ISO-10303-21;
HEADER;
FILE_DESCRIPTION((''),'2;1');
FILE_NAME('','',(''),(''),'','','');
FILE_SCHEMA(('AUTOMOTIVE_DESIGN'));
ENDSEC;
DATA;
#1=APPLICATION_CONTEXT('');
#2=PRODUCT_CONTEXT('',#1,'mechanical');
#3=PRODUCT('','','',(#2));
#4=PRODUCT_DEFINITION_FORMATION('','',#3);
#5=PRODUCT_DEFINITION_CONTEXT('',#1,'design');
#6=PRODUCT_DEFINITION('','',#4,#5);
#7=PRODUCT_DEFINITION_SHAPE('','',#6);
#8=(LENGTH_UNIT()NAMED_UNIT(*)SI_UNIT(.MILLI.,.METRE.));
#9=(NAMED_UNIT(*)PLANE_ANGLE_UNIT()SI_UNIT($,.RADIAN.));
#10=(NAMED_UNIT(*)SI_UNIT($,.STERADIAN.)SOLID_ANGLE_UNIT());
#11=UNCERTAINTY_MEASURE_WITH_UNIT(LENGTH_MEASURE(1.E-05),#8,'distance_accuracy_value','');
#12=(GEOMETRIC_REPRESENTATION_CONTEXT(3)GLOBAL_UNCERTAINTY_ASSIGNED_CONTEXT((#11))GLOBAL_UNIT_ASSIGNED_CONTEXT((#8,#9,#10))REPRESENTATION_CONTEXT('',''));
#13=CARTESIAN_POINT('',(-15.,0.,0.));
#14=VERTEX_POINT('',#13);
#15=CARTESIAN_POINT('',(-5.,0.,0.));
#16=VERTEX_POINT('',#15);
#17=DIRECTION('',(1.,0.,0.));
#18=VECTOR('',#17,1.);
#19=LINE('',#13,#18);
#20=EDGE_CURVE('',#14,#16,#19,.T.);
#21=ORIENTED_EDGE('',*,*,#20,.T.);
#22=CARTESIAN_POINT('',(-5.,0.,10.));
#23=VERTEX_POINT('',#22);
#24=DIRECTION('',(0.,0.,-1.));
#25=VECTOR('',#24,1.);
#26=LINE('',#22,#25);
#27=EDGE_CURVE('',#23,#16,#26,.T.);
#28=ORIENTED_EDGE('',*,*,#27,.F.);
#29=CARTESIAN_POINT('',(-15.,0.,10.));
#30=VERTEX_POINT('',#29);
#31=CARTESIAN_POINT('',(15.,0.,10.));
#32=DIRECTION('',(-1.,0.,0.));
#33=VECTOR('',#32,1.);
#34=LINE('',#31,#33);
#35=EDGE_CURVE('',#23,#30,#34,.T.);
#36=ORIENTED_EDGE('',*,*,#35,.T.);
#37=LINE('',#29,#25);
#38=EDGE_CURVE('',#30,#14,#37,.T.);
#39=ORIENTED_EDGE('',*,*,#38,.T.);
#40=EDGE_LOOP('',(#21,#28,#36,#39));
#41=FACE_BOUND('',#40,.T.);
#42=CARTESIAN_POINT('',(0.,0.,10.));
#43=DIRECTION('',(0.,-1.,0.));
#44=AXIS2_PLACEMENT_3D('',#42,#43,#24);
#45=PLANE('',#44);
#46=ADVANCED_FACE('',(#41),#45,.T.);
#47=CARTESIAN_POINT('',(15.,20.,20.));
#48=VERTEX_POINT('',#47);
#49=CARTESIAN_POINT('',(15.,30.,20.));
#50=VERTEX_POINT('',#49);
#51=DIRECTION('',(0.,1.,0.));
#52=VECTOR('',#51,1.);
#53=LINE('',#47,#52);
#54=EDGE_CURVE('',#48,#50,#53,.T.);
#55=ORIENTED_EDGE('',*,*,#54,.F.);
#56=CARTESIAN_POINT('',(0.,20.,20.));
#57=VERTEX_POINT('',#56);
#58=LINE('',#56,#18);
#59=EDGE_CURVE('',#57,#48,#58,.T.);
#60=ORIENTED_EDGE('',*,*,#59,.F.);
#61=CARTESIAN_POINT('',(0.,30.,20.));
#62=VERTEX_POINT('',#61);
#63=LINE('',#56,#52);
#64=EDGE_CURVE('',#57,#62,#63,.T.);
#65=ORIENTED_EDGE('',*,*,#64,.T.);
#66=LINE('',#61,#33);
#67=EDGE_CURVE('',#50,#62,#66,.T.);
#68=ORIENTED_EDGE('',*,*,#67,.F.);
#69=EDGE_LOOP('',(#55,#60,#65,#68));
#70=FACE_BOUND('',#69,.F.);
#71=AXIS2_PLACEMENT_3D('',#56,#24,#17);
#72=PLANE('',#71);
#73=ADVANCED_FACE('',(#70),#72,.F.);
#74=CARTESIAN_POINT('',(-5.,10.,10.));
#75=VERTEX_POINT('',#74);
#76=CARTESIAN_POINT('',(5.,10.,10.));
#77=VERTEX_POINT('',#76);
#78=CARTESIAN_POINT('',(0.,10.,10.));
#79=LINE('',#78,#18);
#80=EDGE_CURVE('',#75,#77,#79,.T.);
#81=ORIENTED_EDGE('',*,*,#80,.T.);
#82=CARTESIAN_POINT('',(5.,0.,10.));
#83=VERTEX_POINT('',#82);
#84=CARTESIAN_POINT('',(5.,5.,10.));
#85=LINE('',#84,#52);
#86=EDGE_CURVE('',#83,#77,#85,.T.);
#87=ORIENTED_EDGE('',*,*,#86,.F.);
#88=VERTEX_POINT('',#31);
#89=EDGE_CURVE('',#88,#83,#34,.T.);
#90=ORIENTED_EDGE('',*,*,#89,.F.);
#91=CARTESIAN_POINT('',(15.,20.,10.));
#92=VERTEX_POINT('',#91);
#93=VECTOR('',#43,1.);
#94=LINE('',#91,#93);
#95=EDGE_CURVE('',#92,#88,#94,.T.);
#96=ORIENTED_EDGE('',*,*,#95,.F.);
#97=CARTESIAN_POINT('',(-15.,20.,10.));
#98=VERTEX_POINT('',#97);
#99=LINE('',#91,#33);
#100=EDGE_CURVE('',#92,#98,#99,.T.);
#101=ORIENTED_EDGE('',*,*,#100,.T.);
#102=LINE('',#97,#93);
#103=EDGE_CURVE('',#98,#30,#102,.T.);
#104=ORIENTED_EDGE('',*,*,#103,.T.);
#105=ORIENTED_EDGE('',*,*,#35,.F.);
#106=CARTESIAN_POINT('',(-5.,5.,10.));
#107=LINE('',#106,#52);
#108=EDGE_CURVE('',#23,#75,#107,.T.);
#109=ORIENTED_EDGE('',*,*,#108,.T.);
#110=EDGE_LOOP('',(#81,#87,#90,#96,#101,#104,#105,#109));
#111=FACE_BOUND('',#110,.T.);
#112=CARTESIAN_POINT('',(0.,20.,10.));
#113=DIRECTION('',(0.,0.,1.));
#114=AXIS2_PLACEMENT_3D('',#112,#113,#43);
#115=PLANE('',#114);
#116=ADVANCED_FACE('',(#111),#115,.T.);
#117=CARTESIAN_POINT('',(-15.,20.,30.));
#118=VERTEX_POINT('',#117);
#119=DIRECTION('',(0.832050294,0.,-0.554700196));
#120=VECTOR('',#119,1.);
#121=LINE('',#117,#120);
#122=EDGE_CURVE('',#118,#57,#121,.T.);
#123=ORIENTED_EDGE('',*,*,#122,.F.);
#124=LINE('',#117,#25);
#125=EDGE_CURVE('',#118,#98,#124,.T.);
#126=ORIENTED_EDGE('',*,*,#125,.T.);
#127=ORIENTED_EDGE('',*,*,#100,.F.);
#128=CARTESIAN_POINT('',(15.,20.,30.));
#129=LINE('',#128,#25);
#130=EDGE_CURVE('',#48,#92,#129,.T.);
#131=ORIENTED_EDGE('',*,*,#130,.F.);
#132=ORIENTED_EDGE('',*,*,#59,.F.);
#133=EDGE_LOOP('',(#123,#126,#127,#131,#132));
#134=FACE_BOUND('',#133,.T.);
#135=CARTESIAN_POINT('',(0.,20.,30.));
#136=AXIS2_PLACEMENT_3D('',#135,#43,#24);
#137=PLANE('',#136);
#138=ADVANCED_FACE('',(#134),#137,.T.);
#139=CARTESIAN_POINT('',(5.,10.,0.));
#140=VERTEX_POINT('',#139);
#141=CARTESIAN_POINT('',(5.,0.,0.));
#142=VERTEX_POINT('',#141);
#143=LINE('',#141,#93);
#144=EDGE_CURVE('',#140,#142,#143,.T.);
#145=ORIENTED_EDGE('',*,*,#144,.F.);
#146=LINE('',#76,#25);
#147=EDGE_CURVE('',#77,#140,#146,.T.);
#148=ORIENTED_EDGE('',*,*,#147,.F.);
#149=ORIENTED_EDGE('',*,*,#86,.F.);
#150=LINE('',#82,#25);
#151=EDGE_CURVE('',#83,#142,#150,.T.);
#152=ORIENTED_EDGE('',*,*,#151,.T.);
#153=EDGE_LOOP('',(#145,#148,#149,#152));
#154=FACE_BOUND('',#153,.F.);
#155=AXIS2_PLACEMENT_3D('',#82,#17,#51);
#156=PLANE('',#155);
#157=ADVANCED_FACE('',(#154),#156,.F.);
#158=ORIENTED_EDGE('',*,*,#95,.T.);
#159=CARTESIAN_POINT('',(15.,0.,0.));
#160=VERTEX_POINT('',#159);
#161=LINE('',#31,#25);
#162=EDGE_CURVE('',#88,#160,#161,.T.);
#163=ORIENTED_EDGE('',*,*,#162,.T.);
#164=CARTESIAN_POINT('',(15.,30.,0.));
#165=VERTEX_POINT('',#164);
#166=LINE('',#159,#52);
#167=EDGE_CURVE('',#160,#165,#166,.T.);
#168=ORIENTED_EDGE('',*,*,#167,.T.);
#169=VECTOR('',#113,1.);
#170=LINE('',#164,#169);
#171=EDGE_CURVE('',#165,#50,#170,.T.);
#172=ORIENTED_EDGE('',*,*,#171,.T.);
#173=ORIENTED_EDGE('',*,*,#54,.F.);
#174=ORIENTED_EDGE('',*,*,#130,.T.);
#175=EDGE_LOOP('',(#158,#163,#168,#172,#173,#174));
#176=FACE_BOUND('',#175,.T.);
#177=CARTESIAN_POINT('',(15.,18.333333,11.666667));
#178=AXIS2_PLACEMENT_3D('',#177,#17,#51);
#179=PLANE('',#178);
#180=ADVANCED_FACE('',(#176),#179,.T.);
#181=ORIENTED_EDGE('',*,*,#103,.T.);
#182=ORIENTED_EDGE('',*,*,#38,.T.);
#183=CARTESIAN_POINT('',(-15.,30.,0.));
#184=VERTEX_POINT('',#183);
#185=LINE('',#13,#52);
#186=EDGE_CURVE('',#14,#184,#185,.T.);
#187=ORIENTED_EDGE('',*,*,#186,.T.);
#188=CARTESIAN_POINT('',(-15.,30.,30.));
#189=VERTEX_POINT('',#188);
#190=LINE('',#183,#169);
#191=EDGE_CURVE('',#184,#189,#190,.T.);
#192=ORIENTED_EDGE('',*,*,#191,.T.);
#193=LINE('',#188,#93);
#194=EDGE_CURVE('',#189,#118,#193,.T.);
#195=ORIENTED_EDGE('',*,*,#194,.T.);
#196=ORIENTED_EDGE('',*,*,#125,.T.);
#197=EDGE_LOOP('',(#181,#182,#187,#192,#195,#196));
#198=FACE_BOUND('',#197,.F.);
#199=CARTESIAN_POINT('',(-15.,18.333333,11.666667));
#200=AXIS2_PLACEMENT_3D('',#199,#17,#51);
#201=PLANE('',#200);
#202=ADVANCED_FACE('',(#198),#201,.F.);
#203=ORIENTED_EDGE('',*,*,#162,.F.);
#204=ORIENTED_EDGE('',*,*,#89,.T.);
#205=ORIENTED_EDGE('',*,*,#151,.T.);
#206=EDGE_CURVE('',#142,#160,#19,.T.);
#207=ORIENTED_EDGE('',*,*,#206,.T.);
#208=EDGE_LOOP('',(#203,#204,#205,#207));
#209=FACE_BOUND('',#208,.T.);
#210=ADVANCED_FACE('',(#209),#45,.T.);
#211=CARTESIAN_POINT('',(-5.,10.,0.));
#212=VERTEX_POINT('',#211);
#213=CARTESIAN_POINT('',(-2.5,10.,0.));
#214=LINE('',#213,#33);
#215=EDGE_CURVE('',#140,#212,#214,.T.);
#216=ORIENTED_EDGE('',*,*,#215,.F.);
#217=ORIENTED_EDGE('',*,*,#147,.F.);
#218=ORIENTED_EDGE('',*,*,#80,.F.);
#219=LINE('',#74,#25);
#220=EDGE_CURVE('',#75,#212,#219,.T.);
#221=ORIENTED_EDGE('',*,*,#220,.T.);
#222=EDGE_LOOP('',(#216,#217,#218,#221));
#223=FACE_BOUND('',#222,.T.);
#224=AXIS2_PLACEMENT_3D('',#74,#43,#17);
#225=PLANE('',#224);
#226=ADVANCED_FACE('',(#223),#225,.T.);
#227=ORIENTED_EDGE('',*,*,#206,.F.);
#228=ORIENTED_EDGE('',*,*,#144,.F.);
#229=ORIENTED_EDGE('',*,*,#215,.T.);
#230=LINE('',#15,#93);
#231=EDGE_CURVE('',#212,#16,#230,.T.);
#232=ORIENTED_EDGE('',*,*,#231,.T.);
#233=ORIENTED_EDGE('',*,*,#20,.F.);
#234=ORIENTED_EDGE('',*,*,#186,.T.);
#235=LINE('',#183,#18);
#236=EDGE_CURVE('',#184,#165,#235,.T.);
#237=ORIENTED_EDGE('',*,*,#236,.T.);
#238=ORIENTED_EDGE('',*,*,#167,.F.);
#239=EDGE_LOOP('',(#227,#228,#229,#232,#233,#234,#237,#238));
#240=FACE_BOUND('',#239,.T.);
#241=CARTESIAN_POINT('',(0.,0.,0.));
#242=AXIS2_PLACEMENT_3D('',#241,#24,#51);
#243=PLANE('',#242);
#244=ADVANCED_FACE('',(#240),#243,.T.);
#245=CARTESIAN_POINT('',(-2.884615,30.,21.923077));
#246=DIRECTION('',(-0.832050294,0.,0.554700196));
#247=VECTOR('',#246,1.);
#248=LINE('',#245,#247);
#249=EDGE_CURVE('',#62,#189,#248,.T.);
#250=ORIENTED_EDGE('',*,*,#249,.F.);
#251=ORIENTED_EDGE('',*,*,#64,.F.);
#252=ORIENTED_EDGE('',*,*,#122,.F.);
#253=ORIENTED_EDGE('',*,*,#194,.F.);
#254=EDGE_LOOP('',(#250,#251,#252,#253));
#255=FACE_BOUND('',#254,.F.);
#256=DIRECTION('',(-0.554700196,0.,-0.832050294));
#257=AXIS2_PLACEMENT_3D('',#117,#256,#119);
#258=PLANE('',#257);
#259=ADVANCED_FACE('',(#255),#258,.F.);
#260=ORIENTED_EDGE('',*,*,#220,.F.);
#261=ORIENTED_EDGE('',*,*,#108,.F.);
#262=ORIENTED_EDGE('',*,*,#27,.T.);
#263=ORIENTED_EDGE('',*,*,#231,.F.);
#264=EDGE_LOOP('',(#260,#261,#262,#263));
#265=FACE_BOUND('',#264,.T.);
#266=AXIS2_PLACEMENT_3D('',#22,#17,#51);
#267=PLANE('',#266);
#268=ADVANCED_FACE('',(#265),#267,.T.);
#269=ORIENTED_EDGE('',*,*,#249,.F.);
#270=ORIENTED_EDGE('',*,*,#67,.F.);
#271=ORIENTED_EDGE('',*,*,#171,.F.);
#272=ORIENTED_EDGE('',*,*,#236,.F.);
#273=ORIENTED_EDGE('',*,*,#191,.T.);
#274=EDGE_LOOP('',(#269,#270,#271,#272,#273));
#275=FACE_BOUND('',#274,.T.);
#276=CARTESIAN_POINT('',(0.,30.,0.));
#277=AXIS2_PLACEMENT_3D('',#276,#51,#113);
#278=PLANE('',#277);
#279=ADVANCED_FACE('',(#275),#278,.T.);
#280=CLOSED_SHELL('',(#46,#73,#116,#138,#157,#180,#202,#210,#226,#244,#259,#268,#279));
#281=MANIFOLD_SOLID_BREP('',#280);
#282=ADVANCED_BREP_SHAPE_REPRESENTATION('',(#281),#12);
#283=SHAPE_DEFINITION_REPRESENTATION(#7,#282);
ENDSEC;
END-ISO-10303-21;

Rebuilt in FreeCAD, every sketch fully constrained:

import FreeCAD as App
import Part
import Sketcher

V = App.Vector

doc = App.newDocument("Part")
body = doc.addObject("PartDesign::Body", "Body")

# Sketch on YZ plane
sketch1 = body.newObject("Sketcher::SketchObject", "Sketch")
sketch1.AttachmentSupport = (doc.getObject("YZ_Plane"), [""])
sketch1.MapMode = "FlatFace"
sketch1.addGeometry(Part.LineSegment(V(0, 10, 0), V(0, 0, 0)), False)
sketch1.addGeometry(Part.LineSegment(V(0, 0, 0), V(30, 0, 0)), False)
sketch1.addGeometry(Part.LineSegment(V(30, 0, 0), V(30, 30, 0)), False)
sketch1.addGeometry(Part.LineSegment(V(30, 30, 0), V(20, 30, 0)), False)
sketch1.addGeometry(Part.LineSegment(V(20, 30, 0), V(20, 10, 0)), False)
sketch1.addGeometry(Part.LineSegment(V(20, 10, 0), V(0, 10, 0)), False)
sketch1.addConstraint(Sketcher.Constraint("Coincident", 0, 2, 1, 1))
sketch1.addConstraint(Sketcher.Constraint("Coincident", 1, 2, 2, 1))
sketch1.addConstraint(Sketcher.Constraint("Coincident", 2, 2, 3, 1))
sketch1.addConstraint(Sketcher.Constraint("Coincident", 3, 2, 4, 1))
sketch1.addConstraint(Sketcher.Constraint("Coincident", 4, 2, 5, 1))
sketch1.addConstraint(Sketcher.Constraint("Coincident", 5, 2, 0, 1))
sketch1.addConstraint(Sketcher.Constraint("Vertical", 0))
sketch1.addConstraint(Sketcher.Constraint("Horizontal", 1))
sketch1.addConstraint(Sketcher.Constraint("Vertical", 2))
sketch1.addConstraint(Sketcher.Constraint("Horizontal", 3))
sketch1.addConstraint(Sketcher.Constraint("Vertical", 4))
sketch1.addConstraint(Sketcher.Constraint("Horizontal", 5))
sketch1.addConstraint(Sketcher.Constraint("Coincident", 0, 2, -1, 1))
sketch1.addConstraint(Sketcher.Constraint("Equal", 3, 0))
sketch1.addConstraint(Sketcher.Constraint("Equal", 1, 2))
sketch1.addConstraint(Sketcher.Constraint("DistanceX", 1, 1, 1, 2, 30.0))
sketch1.addConstraint(Sketcher.Constraint("DistanceX", 3, 2, 3, 1, 10.0))
pad1 = body.newObject("PartDesign::Pad", "Pad")
pad1.Profile = sketch1
pad1.Length = 30
pad1.Midplane = True

# Sketch on XZ plane
sketch2 = body.newObject("Sketcher::SketchObject", "Sketch001")
sketch2.AttachmentSupport = (doc.getObject("XZ_Plane"), [""])
sketch2.MapMode = "FlatFace"
sketch2.AttachmentOffset = App.Placement(V(0, 0, -20), App.Rotation())
sketch2.addGeometry(Part.LineSegment(V(15, 30, 0), V(-15, 30, 0)), False)
sketch2.addGeometry(Part.LineSegment(V(-15, 30, 0), V(0, 20, 0)), False)
sketch2.addGeometry(Part.LineSegment(V(0, 20, 0), V(15, 20, 0)), False)
sketch2.addGeometry(Part.LineSegment(V(15, 20, 0), V(15, 30, 0)), False)
sketch2.addConstraint(Sketcher.Constraint("Coincident", 0, 2, 1, 1))
sketch2.addConstraint(Sketcher.Constraint("Coincident", 1, 2, 2, 1))
sketch2.addConstraint(Sketcher.Constraint("Coincident", 2, 2, 3, 1))
sketch2.addConstraint(Sketcher.Constraint("Coincident", 3, 2, 0, 1))
sketch2.addConstraint(Sketcher.Constraint("Horizontal", 0))
sketch2.addConstraint(Sketcher.Constraint("Horizontal", 2))
sketch2.addConstraint(Sketcher.Constraint("Vertical", 3))
sketch2.addConstraint(Sketcher.Constraint("PointOnObject", 1, 2, -2))
sketch2.addConstraint(Sketcher.Constraint("DistanceX", 0, 2, 0, 1, 30.0))
sketch2.addConstraint(Sketcher.Constraint("DistanceX", 2, 1, 2, 2, 15.0))
sketch2.addConstraint(Sketcher.Constraint("DistanceY", 3, 1, 3, 2, 10.0))
sketch2.addConstraint(Sketcher.Constraint("DistanceY", -1, 1, 0, 2, 30.0))
pocket1 = body.newObject("PartDesign::Pocket", "Pocket")
pocket1.Profile = sketch2
pocket1.Type = "ThroughAll"

# Sketch on XY plane
sketch3 = body.newObject("Sketcher::SketchObject", "Sketch002")
sketch3.AttachmentSupport = (doc.getObject("XY_Plane"), [""])
sketch3.MapMode = "FlatFace"
sketch3.AttachmentOffset = App.Placement(V(0, 0, 10), App.Rotation())
sketch3.addGeometry(Part.LineSegment(V(-5, 10, 0), V(-5, 0, 0)), False)
sketch3.addGeometry(Part.LineSegment(V(-5, 0, 0), V(5, 0, 0)), False)
sketch3.addGeometry(Part.LineSegment(V(5, 0, 0), V(5, 10, 0)), False)
sketch3.addGeometry(Part.LineSegment(V(5, 10, 0), V(-5, 10, 0)), False)
sketch3.addConstraint(Sketcher.Constraint("Coincident", 0, 2, 1, 1))
sketch3.addConstraint(Sketcher.Constraint("Coincident", 1, 2, 2, 1))
sketch3.addConstraint(Sketcher.Constraint("Coincident", 2, 2, 3, 1))
sketch3.addConstraint(Sketcher.Constraint("Coincident", 3, 2, 0, 1))
sketch3.addConstraint(Sketcher.Constraint("Vertical", 0))
sketch3.addConstraint(Sketcher.Constraint("Horizontal", 1))
sketch3.addConstraint(Sketcher.Constraint("Vertical", 2))
sketch3.addConstraint(Sketcher.Constraint("Horizontal", 3))
sketch3.addConstraint(Sketcher.Constraint("Symmetric", 0, 2, 1, 2, -1, 1))
sketch3.addConstraint(Sketcher.Constraint("Equal", 3, 0))
sketch3.addConstraint(Sketcher.Constraint("DistanceX", 1, 1, 1, 2, 10.0))
pocket2 = body.newObject("PartDesign::Pocket", "Pocket001")
pocket2.Profile = sketch3
pocket2.Type = "ThroughAll"

doc.recompute()
